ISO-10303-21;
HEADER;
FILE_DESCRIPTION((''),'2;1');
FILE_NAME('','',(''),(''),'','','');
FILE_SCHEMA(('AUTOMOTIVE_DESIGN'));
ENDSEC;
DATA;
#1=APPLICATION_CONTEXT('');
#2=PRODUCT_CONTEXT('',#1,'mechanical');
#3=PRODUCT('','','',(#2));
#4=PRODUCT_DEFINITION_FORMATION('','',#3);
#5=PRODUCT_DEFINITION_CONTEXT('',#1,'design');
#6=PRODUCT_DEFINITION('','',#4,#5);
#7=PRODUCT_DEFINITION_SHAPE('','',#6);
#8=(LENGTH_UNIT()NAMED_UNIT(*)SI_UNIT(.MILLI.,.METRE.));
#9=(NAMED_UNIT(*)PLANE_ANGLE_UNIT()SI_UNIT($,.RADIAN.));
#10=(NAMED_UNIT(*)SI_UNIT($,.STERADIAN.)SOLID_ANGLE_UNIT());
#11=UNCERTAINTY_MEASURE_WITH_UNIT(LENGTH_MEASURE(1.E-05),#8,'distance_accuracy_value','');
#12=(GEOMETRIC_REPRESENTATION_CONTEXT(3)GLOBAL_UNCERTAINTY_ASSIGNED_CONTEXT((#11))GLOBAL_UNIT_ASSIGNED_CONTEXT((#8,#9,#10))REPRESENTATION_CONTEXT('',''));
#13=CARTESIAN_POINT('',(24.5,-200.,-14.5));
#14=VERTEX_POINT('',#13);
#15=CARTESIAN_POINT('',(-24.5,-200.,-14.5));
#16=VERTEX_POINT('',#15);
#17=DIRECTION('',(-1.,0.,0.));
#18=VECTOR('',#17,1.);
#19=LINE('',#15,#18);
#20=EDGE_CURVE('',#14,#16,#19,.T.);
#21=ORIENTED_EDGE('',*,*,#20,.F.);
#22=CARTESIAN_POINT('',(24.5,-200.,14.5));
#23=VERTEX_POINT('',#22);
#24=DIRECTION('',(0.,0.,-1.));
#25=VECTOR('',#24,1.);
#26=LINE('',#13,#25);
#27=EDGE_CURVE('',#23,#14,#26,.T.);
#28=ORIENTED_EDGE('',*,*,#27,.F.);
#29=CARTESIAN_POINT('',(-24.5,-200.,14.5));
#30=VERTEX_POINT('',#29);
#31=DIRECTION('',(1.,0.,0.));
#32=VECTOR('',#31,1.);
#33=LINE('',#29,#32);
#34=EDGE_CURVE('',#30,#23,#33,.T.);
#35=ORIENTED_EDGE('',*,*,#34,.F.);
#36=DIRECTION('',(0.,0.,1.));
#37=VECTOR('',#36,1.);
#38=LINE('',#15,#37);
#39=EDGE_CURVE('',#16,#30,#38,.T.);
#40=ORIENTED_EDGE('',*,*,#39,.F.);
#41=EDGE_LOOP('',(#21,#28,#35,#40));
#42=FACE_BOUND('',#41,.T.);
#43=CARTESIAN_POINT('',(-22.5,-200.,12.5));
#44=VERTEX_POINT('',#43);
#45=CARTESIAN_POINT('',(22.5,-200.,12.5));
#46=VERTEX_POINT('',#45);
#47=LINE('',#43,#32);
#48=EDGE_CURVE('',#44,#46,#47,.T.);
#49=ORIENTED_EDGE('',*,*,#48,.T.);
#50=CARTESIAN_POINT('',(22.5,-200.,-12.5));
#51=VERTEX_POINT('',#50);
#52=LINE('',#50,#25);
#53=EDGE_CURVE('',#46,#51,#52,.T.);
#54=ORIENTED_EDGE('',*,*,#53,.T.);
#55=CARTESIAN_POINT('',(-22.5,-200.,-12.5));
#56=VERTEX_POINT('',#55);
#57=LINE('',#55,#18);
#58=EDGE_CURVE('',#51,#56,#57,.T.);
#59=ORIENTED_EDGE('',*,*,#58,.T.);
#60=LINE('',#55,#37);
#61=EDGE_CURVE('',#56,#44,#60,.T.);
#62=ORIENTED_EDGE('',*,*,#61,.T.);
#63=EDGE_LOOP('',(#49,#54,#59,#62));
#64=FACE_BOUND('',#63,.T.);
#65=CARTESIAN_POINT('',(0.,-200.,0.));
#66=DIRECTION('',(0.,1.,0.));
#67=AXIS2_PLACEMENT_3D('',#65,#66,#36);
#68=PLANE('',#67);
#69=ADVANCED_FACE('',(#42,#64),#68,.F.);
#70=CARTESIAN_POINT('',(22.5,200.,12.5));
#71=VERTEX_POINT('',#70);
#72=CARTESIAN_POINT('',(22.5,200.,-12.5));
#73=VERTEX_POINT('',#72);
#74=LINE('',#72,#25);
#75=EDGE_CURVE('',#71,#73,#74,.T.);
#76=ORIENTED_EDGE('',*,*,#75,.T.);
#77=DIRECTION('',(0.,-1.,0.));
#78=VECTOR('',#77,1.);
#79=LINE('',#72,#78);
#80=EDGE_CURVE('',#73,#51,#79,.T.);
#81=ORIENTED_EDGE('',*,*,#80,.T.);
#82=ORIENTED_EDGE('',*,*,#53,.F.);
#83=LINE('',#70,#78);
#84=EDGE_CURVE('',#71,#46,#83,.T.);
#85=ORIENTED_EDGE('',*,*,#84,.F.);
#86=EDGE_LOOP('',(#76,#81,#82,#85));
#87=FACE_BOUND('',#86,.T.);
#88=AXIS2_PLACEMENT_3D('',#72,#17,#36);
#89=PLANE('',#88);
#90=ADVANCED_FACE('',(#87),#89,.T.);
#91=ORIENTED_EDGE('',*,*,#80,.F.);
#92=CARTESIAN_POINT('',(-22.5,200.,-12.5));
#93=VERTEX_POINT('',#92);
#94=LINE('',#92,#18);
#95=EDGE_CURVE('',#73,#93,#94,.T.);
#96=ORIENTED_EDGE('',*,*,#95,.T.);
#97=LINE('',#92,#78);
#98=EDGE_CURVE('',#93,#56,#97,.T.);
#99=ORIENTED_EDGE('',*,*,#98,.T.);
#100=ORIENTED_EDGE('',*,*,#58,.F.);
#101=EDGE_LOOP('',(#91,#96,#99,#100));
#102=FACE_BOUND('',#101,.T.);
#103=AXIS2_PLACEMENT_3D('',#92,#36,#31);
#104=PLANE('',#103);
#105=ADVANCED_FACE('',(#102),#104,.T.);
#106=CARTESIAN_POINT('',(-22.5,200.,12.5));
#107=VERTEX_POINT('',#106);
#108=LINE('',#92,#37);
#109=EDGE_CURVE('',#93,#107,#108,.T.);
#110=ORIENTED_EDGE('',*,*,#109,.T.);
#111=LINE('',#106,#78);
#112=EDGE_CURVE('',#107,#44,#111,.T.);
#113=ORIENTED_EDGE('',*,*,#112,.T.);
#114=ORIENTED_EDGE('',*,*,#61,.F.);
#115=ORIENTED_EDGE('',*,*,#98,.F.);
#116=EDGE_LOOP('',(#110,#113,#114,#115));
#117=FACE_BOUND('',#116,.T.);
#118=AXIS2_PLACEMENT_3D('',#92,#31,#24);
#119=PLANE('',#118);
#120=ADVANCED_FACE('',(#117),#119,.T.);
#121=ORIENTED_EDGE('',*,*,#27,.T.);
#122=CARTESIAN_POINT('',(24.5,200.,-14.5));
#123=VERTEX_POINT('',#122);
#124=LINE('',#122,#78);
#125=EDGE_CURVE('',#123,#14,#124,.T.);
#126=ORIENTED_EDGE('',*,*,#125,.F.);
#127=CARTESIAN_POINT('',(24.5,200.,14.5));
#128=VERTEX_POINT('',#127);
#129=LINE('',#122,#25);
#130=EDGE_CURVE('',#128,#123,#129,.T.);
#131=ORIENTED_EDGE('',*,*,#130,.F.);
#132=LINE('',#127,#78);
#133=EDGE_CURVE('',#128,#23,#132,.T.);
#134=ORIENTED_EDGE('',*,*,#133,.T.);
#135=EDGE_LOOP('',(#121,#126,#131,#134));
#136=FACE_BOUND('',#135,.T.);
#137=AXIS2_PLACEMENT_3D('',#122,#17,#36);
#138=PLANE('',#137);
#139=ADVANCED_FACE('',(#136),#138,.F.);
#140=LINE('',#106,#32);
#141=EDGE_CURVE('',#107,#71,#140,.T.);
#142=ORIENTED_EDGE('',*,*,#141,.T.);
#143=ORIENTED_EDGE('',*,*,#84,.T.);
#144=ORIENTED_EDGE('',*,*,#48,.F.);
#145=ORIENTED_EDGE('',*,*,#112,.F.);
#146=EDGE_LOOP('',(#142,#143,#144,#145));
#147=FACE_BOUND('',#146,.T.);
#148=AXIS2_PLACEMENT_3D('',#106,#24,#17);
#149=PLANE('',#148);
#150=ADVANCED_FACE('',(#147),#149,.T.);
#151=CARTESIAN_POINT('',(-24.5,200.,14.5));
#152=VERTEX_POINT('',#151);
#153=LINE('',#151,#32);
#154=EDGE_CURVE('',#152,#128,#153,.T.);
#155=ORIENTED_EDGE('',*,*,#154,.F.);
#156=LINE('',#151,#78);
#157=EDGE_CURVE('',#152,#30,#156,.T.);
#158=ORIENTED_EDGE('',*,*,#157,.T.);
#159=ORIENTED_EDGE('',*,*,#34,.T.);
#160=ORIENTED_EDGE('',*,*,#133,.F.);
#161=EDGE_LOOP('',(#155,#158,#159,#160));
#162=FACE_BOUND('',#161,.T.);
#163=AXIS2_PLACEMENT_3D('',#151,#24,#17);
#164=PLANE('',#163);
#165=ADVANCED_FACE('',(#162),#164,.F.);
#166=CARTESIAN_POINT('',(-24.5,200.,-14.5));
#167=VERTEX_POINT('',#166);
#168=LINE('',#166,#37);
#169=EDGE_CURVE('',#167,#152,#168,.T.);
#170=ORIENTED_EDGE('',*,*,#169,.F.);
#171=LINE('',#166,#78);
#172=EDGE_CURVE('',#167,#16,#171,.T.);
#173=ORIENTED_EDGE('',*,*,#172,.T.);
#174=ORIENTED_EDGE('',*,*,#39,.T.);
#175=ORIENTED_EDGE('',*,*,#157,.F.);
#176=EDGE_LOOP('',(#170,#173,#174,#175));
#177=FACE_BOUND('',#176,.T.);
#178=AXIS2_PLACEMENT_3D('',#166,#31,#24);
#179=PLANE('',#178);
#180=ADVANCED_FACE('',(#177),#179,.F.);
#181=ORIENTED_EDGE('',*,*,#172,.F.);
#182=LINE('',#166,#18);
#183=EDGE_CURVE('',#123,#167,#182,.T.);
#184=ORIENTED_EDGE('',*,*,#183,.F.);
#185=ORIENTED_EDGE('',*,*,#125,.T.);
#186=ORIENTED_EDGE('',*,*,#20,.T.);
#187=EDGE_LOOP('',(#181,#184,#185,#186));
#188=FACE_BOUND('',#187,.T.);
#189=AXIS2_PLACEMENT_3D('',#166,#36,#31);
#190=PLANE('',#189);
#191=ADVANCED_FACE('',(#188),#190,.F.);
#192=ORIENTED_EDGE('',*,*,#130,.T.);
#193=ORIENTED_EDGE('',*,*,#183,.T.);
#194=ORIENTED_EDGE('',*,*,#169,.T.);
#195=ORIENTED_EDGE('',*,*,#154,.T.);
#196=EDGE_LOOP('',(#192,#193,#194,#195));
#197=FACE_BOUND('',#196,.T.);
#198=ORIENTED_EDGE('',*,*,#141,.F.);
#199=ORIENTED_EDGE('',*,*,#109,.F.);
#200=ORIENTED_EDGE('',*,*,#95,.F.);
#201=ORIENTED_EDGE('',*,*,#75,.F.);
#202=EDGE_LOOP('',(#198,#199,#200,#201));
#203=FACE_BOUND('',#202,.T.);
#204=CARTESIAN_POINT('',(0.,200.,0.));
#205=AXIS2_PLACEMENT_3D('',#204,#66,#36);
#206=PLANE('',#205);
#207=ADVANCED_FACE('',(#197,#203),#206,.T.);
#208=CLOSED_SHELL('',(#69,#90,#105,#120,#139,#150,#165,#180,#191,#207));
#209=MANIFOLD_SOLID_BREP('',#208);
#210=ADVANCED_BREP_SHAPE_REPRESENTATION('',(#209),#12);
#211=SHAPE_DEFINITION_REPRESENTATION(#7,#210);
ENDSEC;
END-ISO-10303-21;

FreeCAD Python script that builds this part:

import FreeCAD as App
import Part
import Sketcher
from FreeCAD import Vector

doc = App.newDocument("Part")
body = doc.addObject("PartDesign::Body", "Body")

# Sketch on XZ plane
sketch1 = body.newObject("Sketcher::SketchObject", "Sketch")
sketch1.AttachmentSupport = (doc.getObject("XZ_Plane"), [""])
sketch1.MapMode = "FlatFace"
sketch1.addGeometry(Part.LineSegment(Vector(-24.5, -14.5, 0), Vector(-24.5, 14.5, 0)), False)
sketch1.addGeometry(Part.LineSegment(Vector(-24.5, 14.5, 0), Vector(24.5, 14.5, 0)), False)
sketch1.addGeometry(Part.LineSegment(Vector(24.5, 14.5, 0), Vector(24.5, -14.5, 0)), False)
sketch1.addGeometry(Part.LineSegment(Vector(24.5, -14.5, 0), Vector(-24.5, -14.5, 0)), False)
sketch1.addGeometry(Part.LineSegment(Vector(22.5, 12.5, 0), Vector(-22.5, 12.5, 0)), False)
sketch1.addGeometry(Part.LineSegment(Vector(-22.5, 12.5, 0), Vector(-22.5, -12.5, 0)), False)
sketch1.addGeometry(Part.LineSegment(Vector(-22.5, -12.5, 0), Vector(22.5, -12.5, 0)), False)
sketch1.addGeometry(Part.LineSegment(Vector(22.5, -12.5, 0), Vector(22.5, 12.5, 0)), False)
sketch1.addConstraint(Sketcher.Constraint("Coincident", 0, 2, 1, 1))
sketch1.addConstraint(Sketcher.Constraint("Coincident", 1, 2, 2, 1))
sketch1.addConstraint(Sketcher.Constraint("Coincident", 2, 2, 3, 1))
sketch1.addConstraint(Sketcher.Constraint("Coincident", 3, 2, 0, 1))
sketch1.addConstraint(Sketcher.Constraint("Coincident", 4, 2, 5, 1))
sketch1.addConstraint(Sketcher.Constraint("Coincident", 5, 2, 6, 1))
sketch1.addConstraint(Sketcher.Constraint("Coincident", 6, 2, 7, 1))
sketch1.addConstraint(Sketcher.Constraint("Coincident", 7, 2, 4, 1))
sketch1.addConstraint(Sketcher.Constraint("Vertical", 0))
sketch1.addConstraint(Sketcher.Constraint("Horizontal", 1))
sketch1.addConstraint(Sketcher.Constraint("Vertical", 2))
sketch1.addConstraint(Sketcher.Constraint("Horizontal", 3))
sketch1.addConstraint(Sketcher.Constraint("Horizontal", 4))
sketch1.addConstraint(Sketcher.Constraint("Vertical", 5))
sketch1.addConstraint(Sketcher.Constraint("Horizontal", 6))
sketch1.addConstraint(Sketcher.Constraint("Vertical", 7))
sketch1.addConstraint(Sketcher.Constraint("Symmetric", 0, 2, 2, 2, -1, 1))
sketch1.addConstraint(Sketcher.Constraint("Symmetric", 4, 2, 6, 2, -1, 1))
sketch1.addConstraint(Sketcher.Constraint("DistanceX", 1, 1, 1, 2, 49.0))
sketch1.addConstraint(Sketcher.Constraint("DistanceX", 4, 2, 4, 1, 45.0))
sketch1.addConstraint(Sketcher.Constraint("DistanceY", 0, 1, 0, 2, 29.0))
sketch1.addConstraint(Sketcher.Constraint("DistanceY", 5, 2, 5, 1, 25.0))
pad1 = body.newObject("PartDesign::Pad", "Pad")
pad1.Profile = sketch1
pad1.Length = 400
pad1.Midplane = True

doc.recompute()
